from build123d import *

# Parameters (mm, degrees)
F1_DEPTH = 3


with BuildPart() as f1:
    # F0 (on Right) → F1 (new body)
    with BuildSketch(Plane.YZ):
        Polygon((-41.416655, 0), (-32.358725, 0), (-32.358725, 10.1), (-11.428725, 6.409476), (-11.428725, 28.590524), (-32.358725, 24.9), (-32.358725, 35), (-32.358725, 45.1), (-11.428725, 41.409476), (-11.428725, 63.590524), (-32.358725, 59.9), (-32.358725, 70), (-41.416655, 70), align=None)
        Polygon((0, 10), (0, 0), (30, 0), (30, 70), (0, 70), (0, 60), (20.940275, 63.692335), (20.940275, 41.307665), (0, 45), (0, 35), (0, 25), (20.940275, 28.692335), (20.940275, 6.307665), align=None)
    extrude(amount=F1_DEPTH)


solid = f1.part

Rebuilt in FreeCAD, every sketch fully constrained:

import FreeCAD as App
import Part
import Sketcher
from FreeCAD import Vector
Q = App.Units.Quantity

doc = App.newDocument("Part")
body = doc.addObject("PartDesign::Body", "Body")
body.AllowCompound = True

# Sketch on YZ plane
sketch1 = doc.addObject("Sketcher::SketchObject", "Sketch")
body.addObject(sketch1)
sketch1.AttachmentSupport = (doc.YZ_Plane, [""])
sketch1.MapMode = "FlatFace"
sketch1.addGeometry([
    Part.LineSegment(Vector(-41.416655, 0, 0), Vector(-32.358725, 0, 0)),  # 0
    Part.LineSegment(Vector(-32.358725, 0, 0), Vector(-32.358725, 10.1, 0)),  # 1
    Part.LineSegment(Vector(-32.358725, 10.1, 0), Vector(-11.428725, 6.409476, 0)),  # 2
    Part.LineSegment(Vector(-11.428725, 6.409476, 0), Vector(-11.428725, 28.590524, 0)),  # 3
    Part.LineSegment(Vector(-11.428725, 28.590524, 0), Vector(-32.358725, 24.9, 0)),  # 4
    Part.LineSegment(Vector(-32.358725, 24.9, 0), Vector(-32.358725, 45.1, 0)),  # 5
    Part.LineSegment(Vector(-32.358725, 45.1, 0), Vector(-11.428725, 41.409476, 0)),  # 6
    Part.LineSegment(Vector(-11.428725, 41.409476, 0), Vector(-11.428725, 63.590524, 0)),  # 7
    Part.LineSegment(Vector(-11.428725, 63.590524, 0), Vector(-32.358725, 59.9, 0)),  # 8
    Part.LineSegment(Vector(-32.358725, 59.9, 0), Vector(-32.358725, 70, 0)),  # 9
    Part.LineSegment(Vector(-32.358725, 70, 0), Vector(-41.416655, 70, 0)),  # 10
    Part.LineSegment(Vector(-41.416655, 70, 0), Vector(-41.416655, 0, 0)),  # 11
    Part.LineSegment(Vector(0, 10, 0), Vector(0, 0, 0)),  # 12
    Part.LineSegment(Vector(0, 0, 0), Vector(30, 0, 0)),  # 13
    Part.LineSegment(Vector(30, 0, 0), Vector(30, 70, 0)),  # 14
    Part.LineSegment(Vector(30, 70, 0), Vector(0, 70, 0)),  # 15
    Part.LineSegment(Vector(0, 70, 0), Vector(0, 60, 0)),  # 16
    Part.LineSegment(Vector(0, 60, 0), Vector(20.940275, 63.692335, 0)),  # 17
    Part.LineSegment(Vector(20.940275, 63.692335, 0), Vector(20.940275, 41.307665, 0)),  # 18
    Part.LineSegment(Vector(20.940275, 41.307665, 0), Vector(0, 45, 0)),  # 19
    Part.LineSegment(Vector(0, 45, 0), Vector(0, 25, 0)),  # 20
    Part.LineSegment(Vector(0, 25, 0), Vector(20.940275, 28.692335, 0)),  # 21
    Part.LineSegment(Vector(20.940275, 28.692335, 0), Vector(20.940275, 6.307665, 0)),  # 22
    Part.LineSegment(Vector(20.940275, 6.307665, 0), Vector(0, 10, 0)),  # 23
], False)
sketch1.addConstraint([
    Sketcher.Constraint("Coincident", 0, 2, 1, 1),
    Sketcher.Constraint("Coincident", 1, 2, 2, 1),
    Sketcher.Constraint("Coincident", 2, 2, 3, 1),
    Sketcher.Constraint("Coincident", 3, 2, 4, 1),
    Sketcher.Constraint("Coincident", 4, 2, 5, 1),
    Sketcher.Constraint("Coincident", 5, 2, 6, 1),
    Sketcher.Constraint("Coincident", 6, 2, 7, 1),
    Sketcher.Constraint("Coincident", 7, 2, 8, 1),
    Sketcher.Constraint("Coincident", 8, 2, 9, 1),
    Sketcher.Constraint("Coincident", 9, 2, 10, 1),
    Sketcher.Constraint("Coincident", 10, 2, 11, 1),
    Sketcher.Constraint("Coincident", 11, 2, 0, 1),
    Sketcher.Constraint("Coincident", 12, 2, 13, 1),
    Sketcher.Constraint("Coincident", 13, 2, 14, 1),
    Sketcher.Constraint("Coincident", 14, 2, 15, 1),
    Sketcher.Constraint("Coincident", 15, 2, 16, 1),
    Sketcher.Constraint("Coincident", 16, 2, 17, 1),
    Sketcher.Constraint("Coincident", 17, 2, 18, 1),
    Sketcher.Constraint("Coincident", 18, 2, 19, 1),
    Sketcher.Constraint("Coincident", 19, 2, 20, 1),
    Sketcher.Constraint("Coincident", 20, 2, 21, 1),
    Sketcher.Constraint("Coincident", 21, 2, 22, 1),
    Sketcher.Constraint("Coincident", 22, 2, 23, 1),
    Sketcher.Constraint("Coincident", 23, 2, 12, 1),
    Sketcher.Constraint("Horizontal", 0),
    Sketcher.Constraint("Vertical", 1),
    Sketcher.Constraint("Vertical", 3),
    Sketcher.Constraint("Vertical", 5),
    Sketcher.Constraint("Vertical", 7),
    Sketcher.Constraint("Vertical", 9),
    Sketcher.Constraint("Horizontal", 10),
    Sketcher.Constraint("Vertical", 11),
    Sketcher.Constraint("Vertical", 12),
    Sketcher.Constraint("Horizontal", 13),
    Sketcher.Constraint("Vertical", 14),
    Sketcher.Constraint("Horizontal", 15),
    Sketcher.Constraint("Vertical", 16),
    Sketcher.Constraint("Vertical", 18),
    Sketcher.Constraint("Vertical", 20),
    Sketcher.Constraint("Vertical", 22),
    Sketcher.Constraint("Coincident", 12, 2, -1, 1),
    Sketcher.Constraint("PointOnObject", 0, 2, -1),
    Sketcher.Constraint("PointOnObject", 15, 2, -2),
    Sketcher.Constraint("PointOnObject", 19, 2, -2),
    Sketcher.Constraint("Parallel", 2, 6),
    Sketcher.Constraint("Parallel", 4, 8),
    Sketcher.Constraint("Parallel", 8, 17),
    Sketcher.Constraint("Parallel", 6, 19),
    Sketcher.Constraint("Parallel", 17, 21),
    Sketcher.Constraint("Parallel", 19, 23),
    Sketcher.Constraint("Horizontal", 10, 2, 14, 2),
    Sketcher.Constraint("Vertical", 1, 2, 4, 2),
    Sketcher.Constraint("Vertical", 3, 2, 6, 2),
    Sketcher.Constraint("Vertical", 5, 2, 8, 2),
    Sketcher.Constraint("Vertical", 18, 2, 21, 2),
    Sketcher.Constraint("Equal", 3, 7),
    Sketcher.Constraint("Equal", 1, 9),
    Sketcher.Constraint("Equal", 12, 16),
    Sketcher.Constraint("Equal", 18, 22),
    Sketcher.Constraint("Equal", 2, 4),
    Sketcher.Constraint("DistanceX", 13, 1, 13, 2, Q("30 mm")),
    Sketcher.Constraint("DistanceY", 11, 2, 11, 1, Q("70 mm")),
    Sketcher.Constraint("DistanceY", 12, 2, 12, 1, Q("10 mm")),
    Sketcher.Constraint("DistanceY", 20, 2, 20, 1, Q("20 mm")),
    Sketcher.Constraint("Angle", 2, Q("-10.000001 deg")),
    Sketcher.Constraint("DistanceY", 1, 1, 1, 2, Q("10.1 mm")),
    Sketcher.Constraint("DistanceY", 5, 1, 5, 2, Q("20.2 mm")),
    Sketcher.Constraint("DistanceX", 1, 2, 2, 2, Q("20.93 mm")),
    Sketcher.Constraint("DistanceX", 7, 2, 17, 2, Q("32.369 mm")),
    Sketcher.Constraint("DistanceX", 0, 1, 0, 2, Q("9.05793 mm")),
    Sketcher.Constraint("DistanceY", 18, 2, 18, 1, Q("22.38467 mm")),
])
pad1 = doc.addObject("PartDesign::Pad", "Pad")
body.addObject(pad1)
pad1.Profile = sketch1
pad1.Length = 3

doc.recompute()
